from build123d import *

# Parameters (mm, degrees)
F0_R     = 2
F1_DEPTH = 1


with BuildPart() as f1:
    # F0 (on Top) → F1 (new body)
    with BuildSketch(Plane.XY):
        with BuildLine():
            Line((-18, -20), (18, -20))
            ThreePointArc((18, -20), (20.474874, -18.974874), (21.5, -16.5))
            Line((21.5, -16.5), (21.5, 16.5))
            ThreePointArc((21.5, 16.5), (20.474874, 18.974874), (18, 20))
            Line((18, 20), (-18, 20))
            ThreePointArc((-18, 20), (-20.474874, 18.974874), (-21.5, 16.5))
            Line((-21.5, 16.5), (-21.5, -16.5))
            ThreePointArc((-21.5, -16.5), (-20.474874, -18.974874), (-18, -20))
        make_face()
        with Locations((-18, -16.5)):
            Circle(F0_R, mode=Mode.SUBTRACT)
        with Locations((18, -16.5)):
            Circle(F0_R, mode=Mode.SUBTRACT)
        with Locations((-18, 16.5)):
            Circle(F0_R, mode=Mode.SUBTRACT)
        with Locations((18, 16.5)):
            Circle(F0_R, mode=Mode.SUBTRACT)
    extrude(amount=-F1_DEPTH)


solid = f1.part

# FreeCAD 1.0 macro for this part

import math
import FreeCAD as App
import Part
import Sketcher
Q = App.Units.Quantity

doc = App.newDocument("Part")
body = doc.addObject("PartDesign::Body", "Body")

sketch1 = doc.addObject("Sketcher::SketchObject", "Sketch")
body.addObject(sketch1)
sketch1.AttachmentSupport = (doc.XY_Plane, [""])
sketch1.MapMode = "FlatFace"
sketch1.addGeometry(Part.LineSegment(App.Vector(-18, -20, 0), App.Vector(18, -20, 0)), False)
sketch1.addGeometry(Part.ArcOfCircle(Part.Circle(App.Vector(18, -16.5, 0), App.Vector(0, 0, 1), 3.5), math.radians(-90), math.radians(0)), False)
sketch1.addGeometry(Part.LineSegment(App.Vector(21.5, -16.5, 0), App.Vector(21.5, 16.5, 0)), False)
sketch1.addGeometry(Part.ArcOfCircle(Part.Circle(App.Vector(18, 16.5, 0), App.Vector(0, 0, 1), 3.5), math.radians(0), math.radians(90)), False)
sketch1.addGeometry(Part.LineSegment(App.Vector(18, 20, 0), App.Vector(-18, 20, 0)), False)
sketch1.addGeometry(Part.ArcOfCircle(Part.Circle(App.Vector(-18, 16.5, 0), App.Vector(0, 0, 1), 3.5), math.radians(90), math.radians(180)), False)
sketch1.addGeometry(Part.LineSegment(App.Vector(-21.5, 16.5, 0), App.Vector(-21.5, -16.5, 0)), False)
sketch1.addGeometry(Part.ArcOfCircle(Part.Circle(App.Vector(-18, -16.5, 0), App.Vector(0, 0, 1), 3.5), math.radians(180), math.radians(270)), False)
sketch1.addGeometry(Part.Circle(App.Vector(-18, -16.5, 0), App.Vector(0, 0, 1), 2), False)
sketch1.addGeometry(Part.Circle(App.Vector(18, -16.5, 0), App.Vector(0, 0, 1), 2), False)
sketch1.addGeometry(Part.Circle(App.Vector(-18, 16.5, 0), App.Vector(0, 0, 1), 2), False)
sketch1.addGeometry(Part.Circle(App.Vector(18, 16.5, 0), App.Vector(0, 0, 1), 2), False)
sketch1.addConstraint(Sketcher.Constraint("Tangent", 0, 2, 1, 1))
sketch1.addConstraint(Sketcher.Constraint("Tangent", 1, 2, 2, 1))
sketch1.addConstraint(Sketcher.Constraint("Tangent", 2, 2, 3, 1))
sketch1.addConstraint(Sketcher.Constraint("Tangent", 3, 2, 4, 1))
sketch1.addConstraint(Sketcher.Constraint("Tangent", 4, 2, 5, 1))
sketch1.addConstraint(Sketcher.Constraint("Tangent", 5, 2, 6, 1))
sketch1.addConstraint(Sketcher.Constraint("Tangent", 6, 2, 7, 1))
sketch1.addConstraint(Sketcher.Constraint("Tangent", 7, 2, 0, 1))
sketch1.addConstraint(Sketcher.Constraint("Horizontal", 0))
sketch1.addConstraint(Sketcher.Constraint("Vertical", 2))
sketch1.addConstraint(Sketcher.Constraint("Horizontal", 4))
sketch1.addConstraint(Sketcher.Constraint("Vertical", 6))
sketch1.addConstraint(Sketcher.Constraint("Coincident", 8, 3, 7, 3))
sketch1.addConstraint(Sketcher.Constraint("Coincident", 9, 3, 1, 3))
sketch1.addConstraint(Sketcher.Constraint("Coincident", 10, 3, 5, 3))
sketch1.addConstraint(Sketcher.Constraint("Coincident", 11, 3, 3, 3))
sketch1.addConstraint(Sketcher.Constraint("Equal", 1, 3))
sketch1.addConstraint(Sketcher.Constraint("Equal", 3, 5))
sketch1.addConstraint(Sketcher.Constraint("Equal", 5, 7))
sketch1.addConstraint(Sketcher.Constraint("Equal", 8, 9))
sketch1.addConstraint(Sketcher.Constraint("Equal", 9, 10))
sketch1.addConstraint(Sketcher.Constraint("Equal", 10, 11))
sketch1.addConstraint(Sketcher.Constraint("Symmetric", 1, 3, 5, 3, -1, 1))
sketch1.addConstraint(Sketcher.Constraint("Diameter", 8, Q("4 mm")))
sketch1.addConstraint(Sketcher.Constraint("Radius", 1, Q("3.499999 mm")))
sketch1.addConstraint(Sketcher.Constraint("DistanceX", 0, 1, 0, 2, Q("36 mm")))
sketch1.addConstraint(Sketcher.Constraint("DistanceY", 2, 1, 2, 2, Q("33 mm")))
pad1 = doc.addObject("PartDesign::Pad", "Pad")
body.addObject(pad1)
pad1.Profile = sketch1
pad1.Length = 1
pad1.Reversed = True

doc.recompute()
